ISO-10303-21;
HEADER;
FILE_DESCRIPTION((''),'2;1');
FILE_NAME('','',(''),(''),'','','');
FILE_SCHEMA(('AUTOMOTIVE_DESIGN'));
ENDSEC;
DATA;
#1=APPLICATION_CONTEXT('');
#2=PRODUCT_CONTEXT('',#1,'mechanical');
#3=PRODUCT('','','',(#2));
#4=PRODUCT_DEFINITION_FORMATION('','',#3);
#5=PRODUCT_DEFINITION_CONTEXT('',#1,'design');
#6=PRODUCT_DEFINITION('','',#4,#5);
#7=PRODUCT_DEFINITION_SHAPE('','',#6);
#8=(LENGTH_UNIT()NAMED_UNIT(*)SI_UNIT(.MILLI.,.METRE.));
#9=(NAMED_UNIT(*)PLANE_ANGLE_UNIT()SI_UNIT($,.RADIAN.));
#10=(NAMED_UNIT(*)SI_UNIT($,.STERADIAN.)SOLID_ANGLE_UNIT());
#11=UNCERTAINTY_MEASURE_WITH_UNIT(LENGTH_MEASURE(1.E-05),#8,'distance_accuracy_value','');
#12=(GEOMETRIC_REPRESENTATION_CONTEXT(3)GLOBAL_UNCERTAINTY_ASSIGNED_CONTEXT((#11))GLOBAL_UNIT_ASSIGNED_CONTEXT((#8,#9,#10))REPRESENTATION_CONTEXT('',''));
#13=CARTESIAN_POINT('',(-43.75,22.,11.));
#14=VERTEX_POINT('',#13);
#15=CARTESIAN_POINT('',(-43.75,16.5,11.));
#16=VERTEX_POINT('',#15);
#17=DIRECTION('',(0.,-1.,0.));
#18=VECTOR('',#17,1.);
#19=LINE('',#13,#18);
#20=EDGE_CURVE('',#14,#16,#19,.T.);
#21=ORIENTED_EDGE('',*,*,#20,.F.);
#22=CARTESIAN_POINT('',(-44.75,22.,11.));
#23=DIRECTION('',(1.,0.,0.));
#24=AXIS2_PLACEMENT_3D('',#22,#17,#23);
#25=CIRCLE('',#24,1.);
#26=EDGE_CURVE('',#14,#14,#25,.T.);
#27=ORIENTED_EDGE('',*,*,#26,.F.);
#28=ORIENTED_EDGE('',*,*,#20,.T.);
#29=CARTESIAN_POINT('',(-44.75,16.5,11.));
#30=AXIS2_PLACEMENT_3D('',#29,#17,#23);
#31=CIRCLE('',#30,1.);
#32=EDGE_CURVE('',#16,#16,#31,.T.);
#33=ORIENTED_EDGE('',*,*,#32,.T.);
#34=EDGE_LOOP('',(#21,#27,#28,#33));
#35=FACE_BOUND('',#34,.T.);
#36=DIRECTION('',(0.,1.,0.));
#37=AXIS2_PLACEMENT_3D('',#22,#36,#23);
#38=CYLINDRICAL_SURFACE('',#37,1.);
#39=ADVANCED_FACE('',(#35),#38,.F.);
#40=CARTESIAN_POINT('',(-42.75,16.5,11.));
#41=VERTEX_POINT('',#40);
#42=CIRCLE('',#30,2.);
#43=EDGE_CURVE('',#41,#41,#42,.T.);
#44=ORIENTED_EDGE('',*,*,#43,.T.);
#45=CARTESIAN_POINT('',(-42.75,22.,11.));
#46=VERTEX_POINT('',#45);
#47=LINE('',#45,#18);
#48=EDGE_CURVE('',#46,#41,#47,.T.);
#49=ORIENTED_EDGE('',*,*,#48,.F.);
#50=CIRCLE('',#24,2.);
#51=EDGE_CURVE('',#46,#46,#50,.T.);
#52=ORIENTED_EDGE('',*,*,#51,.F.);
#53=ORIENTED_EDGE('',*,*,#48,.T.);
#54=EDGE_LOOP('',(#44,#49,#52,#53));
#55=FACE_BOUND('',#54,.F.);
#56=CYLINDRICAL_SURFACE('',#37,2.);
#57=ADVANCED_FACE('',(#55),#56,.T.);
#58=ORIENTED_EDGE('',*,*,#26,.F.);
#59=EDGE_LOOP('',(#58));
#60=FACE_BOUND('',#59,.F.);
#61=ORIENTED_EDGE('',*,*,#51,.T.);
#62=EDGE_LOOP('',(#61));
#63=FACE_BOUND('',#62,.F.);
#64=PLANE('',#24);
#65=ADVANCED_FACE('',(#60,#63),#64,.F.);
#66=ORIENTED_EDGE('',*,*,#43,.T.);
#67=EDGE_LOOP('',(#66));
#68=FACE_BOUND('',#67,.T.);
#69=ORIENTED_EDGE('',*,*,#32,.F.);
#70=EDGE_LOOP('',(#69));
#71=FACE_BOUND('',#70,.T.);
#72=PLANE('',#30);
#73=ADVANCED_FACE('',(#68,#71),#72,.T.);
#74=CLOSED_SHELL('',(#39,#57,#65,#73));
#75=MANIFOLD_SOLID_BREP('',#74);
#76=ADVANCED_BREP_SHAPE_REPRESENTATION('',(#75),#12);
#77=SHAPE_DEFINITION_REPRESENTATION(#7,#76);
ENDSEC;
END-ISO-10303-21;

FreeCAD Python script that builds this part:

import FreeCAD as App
import Part
import Sketcher
from FreeCAD import Vector
Q = App.Units.Quantity

doc = App.newDocument("Part")
body = doc.addObject("PartDesign::Body", "Body")

sketch1 = body.newObject("Sketcher::SketchObject", "Sketch")
sketch1.AttachmentSupport = (doc.getObject("XY_Plane"), [""])
sketch1.MapMode = "FlatFace"
sketch1.addGeometry(Part.Circle(Vector(0, 0, 0), Vector(0, 0, 1), 1), False)
sketch1.addConstraint([
    Sketcher.Constraint("Coincident", 0, 3, -1, 1),
    Sketcher.Constraint("Diameter", 0, Q("2 mm")),
])
pad1 = body.newObject("PartDesign::Pad", "Pad")
pad1.Profile = sketch1
pad1.Length = 5.5
body2 = doc.addObject("PartDesign::Body", "Body001")
doc.recompute()

body.Placement = App.Placement(Vector(0, 0, 0), App.Rotation(Vector(1, 0, 0), 90))
boolean = body2.newObject("PartDesign::Boolean", "Boolean")
boolean.Type = "Fuse"
boolean.addObjects([body])
body3 = doc.addObject("PartDesign::Body", "Body002")
doc.recompute()

body2.Placement = App.Placement(Vector(-44.75, 22, 11), App.Rotation(Vector(0, 0, 1), 0))
boolean2 = body3.newObject("PartDesign::Boolean", "Boolean001")
boolean2.Type = "Fuse"
boolean2.addObjects([body2])
body4 = doc.addObject("PartDesign::Body", "Body003")

sketch2 = body4.newObject("Sketcher::SketchObject", "Sketch001")
sketch2.AttachmentSupport = (doc.getObject("XY_Plane003"), [""])
sketch2.MapMode = "FlatFace"
sketch2.addGeometry(Part.Circle(Vector(0, 0, 0), Vector(0, 0, 1), 2), False)
sketch2.addConstraint([
    Sketcher.Constraint("Coincident", 0, 3, -1, 1),
    Sketcher.Constraint("Diameter", 0, Q("4 mm")),
])
pad2 = body4.newObject("PartDesign::Pad", "Pad001")
pad2.Profile = sketch2
pad2.Length = 5.5
body5 = doc.addObject("PartDesign::Body", "Body004")
doc.recompute()

body4.Placement = App.Placement(Vector(0, 0, 0), App.Rotation(Vector(1, 0, 0), 90))
boolean3 = body5.newObject("PartDesign::Boolean", "Boolean002")
boolean3.Type = "Fuse"
boolean3.addObjects([body4])
body6 = doc.addObject("PartDesign::Body", "Body005")
doc.recompute()

body5.Placement = App.Placement(Vector(-44.75, 22, 11), App.Rotation(Vector(0, 0, 1), 0))
boolean4 = body6.newObject("PartDesign::Boolean", "Boolean003")
boolean4.Type = "Fuse"
boolean4.addObjects([body5])
doc.recompute()

boolean5 = body6.newObject("PartDesign::Boolean", "Boolean004")
boolean5.Type = "Cut"
boolean5.addObjects([body3])

doc.recompute()
